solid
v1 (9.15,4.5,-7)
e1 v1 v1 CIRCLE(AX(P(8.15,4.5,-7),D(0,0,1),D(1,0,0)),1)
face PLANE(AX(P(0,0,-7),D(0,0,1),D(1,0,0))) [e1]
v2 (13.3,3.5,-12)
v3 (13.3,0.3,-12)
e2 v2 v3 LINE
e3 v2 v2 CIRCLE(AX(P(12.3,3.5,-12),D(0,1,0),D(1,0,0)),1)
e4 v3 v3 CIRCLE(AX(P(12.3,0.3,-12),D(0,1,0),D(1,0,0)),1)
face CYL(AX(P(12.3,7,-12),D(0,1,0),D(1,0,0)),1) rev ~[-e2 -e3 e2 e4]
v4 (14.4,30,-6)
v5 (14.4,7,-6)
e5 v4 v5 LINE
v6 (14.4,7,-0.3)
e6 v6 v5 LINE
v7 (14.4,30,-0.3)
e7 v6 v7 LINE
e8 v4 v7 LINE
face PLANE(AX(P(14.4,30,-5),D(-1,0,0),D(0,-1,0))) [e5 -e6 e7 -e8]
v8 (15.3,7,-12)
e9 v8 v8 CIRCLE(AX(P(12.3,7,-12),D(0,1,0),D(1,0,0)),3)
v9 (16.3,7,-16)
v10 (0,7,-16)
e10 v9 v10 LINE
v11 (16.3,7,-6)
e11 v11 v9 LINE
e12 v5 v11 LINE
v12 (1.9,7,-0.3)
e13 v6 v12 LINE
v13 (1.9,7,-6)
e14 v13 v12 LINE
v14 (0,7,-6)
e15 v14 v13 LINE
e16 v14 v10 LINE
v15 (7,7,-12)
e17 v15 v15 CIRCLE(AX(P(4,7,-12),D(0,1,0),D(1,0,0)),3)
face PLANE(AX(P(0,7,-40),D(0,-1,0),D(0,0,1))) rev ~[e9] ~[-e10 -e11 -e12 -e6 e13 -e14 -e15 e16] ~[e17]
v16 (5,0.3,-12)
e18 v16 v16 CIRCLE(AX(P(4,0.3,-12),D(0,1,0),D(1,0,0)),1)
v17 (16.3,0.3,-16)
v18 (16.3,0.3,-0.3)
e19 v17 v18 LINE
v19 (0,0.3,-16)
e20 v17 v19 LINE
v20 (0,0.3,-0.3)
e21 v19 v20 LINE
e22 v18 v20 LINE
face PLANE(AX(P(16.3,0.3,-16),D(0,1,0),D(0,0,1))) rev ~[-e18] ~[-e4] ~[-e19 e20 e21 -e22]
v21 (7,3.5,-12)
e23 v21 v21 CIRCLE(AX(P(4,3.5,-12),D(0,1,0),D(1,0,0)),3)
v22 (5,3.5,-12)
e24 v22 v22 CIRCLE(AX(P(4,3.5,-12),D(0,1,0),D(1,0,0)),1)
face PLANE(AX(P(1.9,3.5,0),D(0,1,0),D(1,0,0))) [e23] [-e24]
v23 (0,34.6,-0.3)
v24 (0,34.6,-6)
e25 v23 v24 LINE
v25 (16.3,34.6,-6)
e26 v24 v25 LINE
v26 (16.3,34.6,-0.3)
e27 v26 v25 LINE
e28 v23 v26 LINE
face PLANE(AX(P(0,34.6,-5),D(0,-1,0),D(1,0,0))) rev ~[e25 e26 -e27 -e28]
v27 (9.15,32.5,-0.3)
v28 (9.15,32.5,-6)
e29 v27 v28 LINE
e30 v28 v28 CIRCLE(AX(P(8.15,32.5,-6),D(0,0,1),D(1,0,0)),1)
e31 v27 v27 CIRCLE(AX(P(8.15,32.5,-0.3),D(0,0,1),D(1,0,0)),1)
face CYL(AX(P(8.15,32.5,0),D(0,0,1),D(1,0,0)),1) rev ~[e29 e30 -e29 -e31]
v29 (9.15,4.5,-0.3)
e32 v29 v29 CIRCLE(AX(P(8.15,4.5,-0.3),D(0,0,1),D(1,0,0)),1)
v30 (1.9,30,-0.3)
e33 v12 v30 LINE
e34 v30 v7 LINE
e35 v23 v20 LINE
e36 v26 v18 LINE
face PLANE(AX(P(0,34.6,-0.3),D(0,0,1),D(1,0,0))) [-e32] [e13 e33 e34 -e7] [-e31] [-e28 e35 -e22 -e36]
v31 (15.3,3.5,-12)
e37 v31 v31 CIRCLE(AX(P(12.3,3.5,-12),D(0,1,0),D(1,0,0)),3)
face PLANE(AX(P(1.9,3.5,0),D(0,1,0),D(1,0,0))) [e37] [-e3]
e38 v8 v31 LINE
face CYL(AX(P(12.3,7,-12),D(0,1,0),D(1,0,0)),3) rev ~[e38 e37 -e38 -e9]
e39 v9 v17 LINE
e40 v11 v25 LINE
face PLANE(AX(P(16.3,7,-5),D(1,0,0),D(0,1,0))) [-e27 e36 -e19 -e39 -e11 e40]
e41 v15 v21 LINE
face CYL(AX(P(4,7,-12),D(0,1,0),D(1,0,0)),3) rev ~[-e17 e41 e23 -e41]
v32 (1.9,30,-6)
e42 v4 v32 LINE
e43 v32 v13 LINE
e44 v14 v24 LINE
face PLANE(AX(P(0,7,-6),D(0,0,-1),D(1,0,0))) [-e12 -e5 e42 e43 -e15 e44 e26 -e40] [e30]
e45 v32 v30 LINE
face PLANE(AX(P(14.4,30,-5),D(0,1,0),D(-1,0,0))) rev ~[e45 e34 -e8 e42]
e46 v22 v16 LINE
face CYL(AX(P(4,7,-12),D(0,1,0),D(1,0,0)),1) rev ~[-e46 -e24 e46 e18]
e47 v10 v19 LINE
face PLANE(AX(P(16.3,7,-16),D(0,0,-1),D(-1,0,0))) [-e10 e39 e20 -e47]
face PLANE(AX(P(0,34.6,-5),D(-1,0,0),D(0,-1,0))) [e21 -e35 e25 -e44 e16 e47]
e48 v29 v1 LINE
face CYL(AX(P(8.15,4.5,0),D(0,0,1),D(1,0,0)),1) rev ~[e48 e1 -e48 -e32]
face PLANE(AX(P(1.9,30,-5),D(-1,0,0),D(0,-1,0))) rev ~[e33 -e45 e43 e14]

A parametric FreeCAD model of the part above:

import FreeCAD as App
import Part
import Sketcher

V = App.Vector
Q = App.Units.Quantity


def add_polygon(sketch, points):
    """Adds a closed chain of lines whose ends are joined by coincident constraints."""
    first, n = sketch.GeometryCount, len(points)
    for a, b in zip(points, points[1:] + points[:1]):
        sketch.addGeometry(Part.LineSegment(App.Vector(*a, 0), App.Vector(*b, 0)), False)
    for i in range(n):
        sketch.addConstraint(Sketcher.Constraint("Coincident", first + i, 2, first + (i + 1) % n, 1))

doc = App.newDocument("Part")
body = doc.addObject("PartDesign::Body", "Body")

# Sketch on YZ plane
sketch1 = body.newObject("Sketcher::SketchObject", "Sketch")
sketch1.AttachmentSupport = (doc.getObject("YZ_Plane"), [""])
sketch1.MapMode = "FlatFace"
add_polygon(sketch1, [(35, -5), (35, 0), (0, 0), (0, -40), (7, -40), (7, -5)])  # lines 0-5
sketch1.addConstraint([
    Sketcher.Constraint("Vertical", 0),
    Sketcher.Constraint("Horizontal", 1),
    Sketcher.Constraint("Vertical", 2),
    Sketcher.Constraint("Horizontal", 3),
    Sketcher.Constraint("Vertical", 4),
    Sketcher.Constraint("Horizontal", 5),
    Sketcher.Constraint("Coincident", 1, 2, -1, 1),
    Sketcher.Constraint("DistanceX", 3, 1, 3, 2, Q("7 mm")),
    Sketcher.Constraint("DistanceY", 0, 1, 0, 2, Q("5 mm")),
    Sketcher.Constraint("DistanceY", 2, 2, 2, 1, Q("40 mm")),
    Sketcher.Constraint("DistanceX", 1, 2, 1, 1, Q("34.6 mm")),
])
pad1 = body.newObject("PartDesign::Pad", "Pad")
pad1.Profile = sketch1
pad1.Length = 16.3

# Sketch on XZ plane
sketch2 = body.newObject("Sketcher::SketchObject", "Sketch001")
sketch2.AttachmentSupport = (doc.getObject("XZ_Plane"), [""])
sketch2.MapMode = "FlatFace"
sketch2.AttachmentOffset = App.Placement(V(0, 0, -7), App.Rotation())
sketch2.addGeometry([
    Part.Circle(V(8.2, -25, 0), V(0, 0, 1), 1.5),
    Part.Circle(V(8.2, -33, 0), V(0, 0, 1), 1.5),
], False)
sketch2.addConstraint([
    Sketcher.Constraint("Equal", 0, 1),
    Sketcher.Constraint("Vertical", 0, 3, 1, 3),
    Sketcher.Constraint("Diameter", 0, Q("3 mm")),
    Sketcher.Constraint("DistanceY", 0, 3, -1, 1, Q("25 mm")),
    Sketcher.Constraint("DistanceY", 1, 3, 0, 3, Q("8 mm")),
    Sketcher.Constraint("DistanceX", -1, 1, 0, 3, Q("8.15 mm")),
])
pocket1 = body.newObject("PartDesign::Pocket", "Pocket")
pocket1.Profile = sketch2
pocket1.Type = "ThroughAll"
pocket1.Reversed = True

# Sketch on XY plane
sketch3 = body.newObject("Sketcher::SketchObject", "Sketch002")
sketch3.AttachmentSupport = (doc.getObject("XY_Plane"), [""])
sketch3.MapMode = "FlatFace"
sketch3.AttachmentOffset = App.Placement(V(0, 0, -5), App.Rotation())
add_polygon(sketch3, [(14, 7), (2, 7), (2, 30), (14, 30)])  # lines 0-3
sketch3.addConstraint([
    Sketcher.Constraint("Horizontal", 0),
    Sketcher.Constraint("Vertical", 1),
    Sketcher.Constraint("Horizontal", 2),
    Sketcher.Constraint("Vertical", 3),
    Sketcher.Constraint("DistanceY", 1, 1, 1, 2, Q("23 mm")),
    Sketcher.Constraint("DistanceX", 0, 2, 0, 1, Q("12.5 mm")),
    Sketcher.Constraint("DistanceX", -1, 1, 0, 2, Q("1.9 mm")),
    Sketcher.Constraint("DistanceY", -1, 1, 0, 2, Q("7 mm")),
])
pocket2 = body.newObject("PartDesign::Pocket", "Pocket001")
pocket2.Profile = sketch3
pocket2.Length = 16.3
pocket2.Reversed = True

# Sketch on XY plane
sketch4 = body.newObject("Sketcher::SketchObject", "Sketch003")
sketch4.AttachmentSupport = (doc.getObject("XY_Plane"), [""])
sketch4.MapMode = "FlatFace"
sketch4.AttachmentOffset = App.Placement(V(0, 0, -5), App.Rotation())
add_polygon(sketch4, [(0, 7), (0, 34.6), (16.3, 34.6), (16.3, 7), (14.4, 7), (14.4, 30), (1.9, 30), (1.9, 7)])  # lines 0-7
sketch4.addConstraint([
    Sketcher.Constraint("Vertical", 0),
    Sketcher.Constraint("Horizontal", 1),
    Sketcher.Constraint("Vertical", 2),
    Sketcher.Constraint("Horizontal", 3),
    Sketcher.Constraint("Vertical", 4),
    Sketcher.Constraint("Horizontal", 5),
    Sketcher.Constraint("Vertical", 6),
    Sketcher.Constraint("Horizontal", 7),
    Sketcher.Constraint("PointOnObject", 0, 2, -2),
    Sketcher.Constraint("Horizontal", 3, 2, 6, 2),
    Sketcher.Constraint("Equal", 3, 7),
    Sketcher.Constraint("DistanceX", 3, 2, 3, 1, Q("1.9 mm")),
    Sketcher.Constraint("DistanceY", 4, 1, 4, 2, Q("23 mm")),
    Sketcher.Constraint("DistanceX", 1, 1, 1, 2, Q("16.3 mm")),
    Sketcher.Constraint("DistanceY", 0, 1, 0, 2, Q("27.6 mm")),
    Sketcher.Constraint("DistanceY", -1, 1, 2, 2, Q("7 mm")),
])
pad2 = body.newObject("PartDesign::Pad", "Pad001")
pad2.Profile = sketch4
pad2.Length = 4
pad2.Reversed = True

# Sketch on XY plane
sketch5 = body.newObject("Sketcher::SketchObject", "Sketch004")
sketch5.AttachmentSupport = (doc.getObject("XY_Plane"), [""])
sketch5.MapMode = "FlatFace"
sketch5.addGeometry([
    Part.Circle(V(8.2, 32.5, 0), V(0, 0, 1), 1),
    Part.Circle(V(8.2, 4.5, 0), V(0, 0, 1), 1),
], False)
sketch5.addConstraint([
    Sketcher.Constraint("Equal", 0, 1),
    Sketcher.Constraint("Vertical", 0, 3, 1, 3),
    Sketcher.Constraint("Diameter", 0, Q("2 mm")),
    Sketcher.Constraint("DistanceX", -1, 1, 0, 3, Q("8.15 mm")),
    Sketcher.Constraint("DistanceY", 1, 3, 0, 3, Q("28 mm")),
    Sketcher.Constraint("DistanceY", -1, 1, 0, 3, Q("32.5 mm")),
])
pocket3 = body.newObject("PartDesign::Pocket", "Pocket002")
pocket3.Profile = sketch5
pocket3.Length = 7

# Sketch on XZ plane
sketch6 = body.newObject("Sketcher::SketchObject", "Sketch005")
sketch6.AttachmentSupport = (doc.getObject("XZ_Plane"), [""])
sketch6.MapMode = "FlatFace"
sketch6.AttachmentOffset = App.Placement(V(0, 0, -7), App.Rotation())
sketch6.addGeometry([
    Part.Circle(V(12.3, -12, 0), V(0, 0, 1), 1),
    Part.Circle(V(4, -12, 0), V(0, 0, 1), 1),
], False)
sketch6.addConstraint([
    Sketcher.Constraint("Equal", 0, 1),
    Sketcher.Constraint("Horizontal", 0, 3, 1, 3),
    Sketcher.Constraint("Diameter", 0, Q("2 mm")),
    Sketcher.Constraint("DistanceY", 0, 3, -1, 1, Q("12 mm")),
    Sketcher.Constraint("DistanceX", -1, 1, 1, 3, Q("4 mm")),
    Sketcher.Constraint("DistanceX", -1, 1, 0, 3, Q("12.3 mm")),
])
pocket4 = body.newObject("PartDesign::Pocket", "Pocket003")
pocket4.Profile = sketch6
pocket4.Length = 10
pocket4.Reversed = True

# Sketch on XZ plane
sketch7 = body.newObject("Sketcher::SketchObject", "Sketch006")
sketch7.AttachmentSupport = (doc.getObject("XZ_Plane"), [""])
sketch7.MapMode = "FlatFace"
sketch7.AttachmentOffset = App.Placement(V(0, 0, -7), App.Rotation())
add_polygon(sketch7, [(16, -40), (0, -40), (0, -16), (16, -16)])  # lines 0-3
sketch7.addConstraint([
    Sketcher.Constraint("Horizontal", 0),
    Sketcher.Constraint("Vertical", 1),
    Sketcher.Constraint("Horizontal", 2),
    Sketcher.Constraint("Vertical", 3),
    Sketcher.Constraint("PointOnObject", 0, 2, -2),
    Sketcher.Constraint("DistanceY", 1, 2, -1, 1, Q("16 mm")),
    Sketcher.Constraint("DistanceY", 1, 1, 1, 2, Q("24 mm")),
    Sketcher.Constraint("DistanceX", 0, 2, 0, 1, Q("16.3 mm")),
])
pocket5 = body.newObject("PartDesign::Pocket", "Pocket004")
pocket5.Profile = sketch7
pocket5.Length = 10
pocket5.Reversed = True

# Sketch on XZ plane
sketch8 = body.newObject("Sketcher::SketchObject", "Sketch007")
sketch8.AttachmentSupport = (doc.getObject("XZ_Plane"), [""])
sketch8.MapMode = "FlatFace"
sketch8.AttachmentOffset = App.Placement(V(0, 0, -7), App.Rotation())
add_polygon(sketch8, [(0, -9), (0, -6), (16.3, -6), (16.3, -9)])  # lines 0-3
sketch8.addConstraint([
    Sketcher.Constraint("Vertical", 0),
    Sketcher.Constraint("Horizontal", 1),
    Sketcher.Constraint("Vertical", 2),
    Sketcher.Constraint("Horizontal", 3),
    Sketcher.Constraint("PointOnObject", 0, 2, -2),
    Sketcher.Constraint("DistanceY", 0, 1, 0, 2, Q("3 mm")),
    Sketcher.Constraint("DistanceX", 1, 1, 1, 2, Q("16.3 mm")),
    Sketcher.Constraint("DistanceY", 0, 2, -1, 1, Q("6 mm")),
])
pocket6 = body.newObject("PartDesign::Pocket", "Pocket005")
pocket6.Profile = sketch8
pocket6.Length = 27.6

# Sketch on XZ plane
sketch9 = body.newObject("Sketcher::SketchObject", "Sketch008")
sketch9.AttachmentSupport = (doc.getObject("XZ_Plane"), [""])
sketch9.MapMode = "FlatFace"
sketch9.AttachmentOffset = App.Placement(V(0, 0, -7), App.Rotation())
sketch9.addGeometry([
    Part.Circle(V(12.3, -12, 0), V(0, 0, 1), 3),
    Part.Circle(V(12.3, -12, 0), V(0, 0, 1), 1),
    Part.Circle(V(4, -12, 0), V(0, 0, 1), 3),
    Part.Circle(V(4, -12, 0), V(0, 0, 1), 1),
], False)
sketch9.addConstraint([
    Sketcher.Constraint("Coincident", 1, 3, 0, 3),
    Sketcher.Constraint("Coincident", 3, 3, 2, 3),
    Sketcher.Constraint("Equal", 0, 2),
    Sketcher.Constraint("Equal", 1, 3),
    Sketcher.Constraint("Horizontal", 1, 3, 2, 3),
    Sketcher.Constraint("Diameter", 0, Q("6 mm")),
    Sketcher.Constraint("Diameter", 1, Q("2 mm")),
    Sketcher.Constraint("DistanceY", 0, 3, -1, 1, Q("12 mm")),
    Sketcher.Constraint("DistanceX", -1, 1, 2, 3, Q("4 mm")),
    Sketcher.Constraint("DistanceX", -1, 1, 0, 3, Q("12.3 mm")),
])
pocket7 = body.newObject("PartDesign::Pocket", "Pocket006")
pocket7.Profile = sketch9
pocket7.Length = 3.5
pocket7.Reversed = True

# Sketch on XZ plane
sketch10 = body.newObject("Sketcher::SketchObject", "Sketch009")
sketch10.AttachmentSupport = (doc.getObject("XZ_Plane"), [""])
sketch10.MapMode = "FlatFace"
sketch10.AttachmentOffset = App.Placement(V(0, 0, -34.6), App.Rotation())
add_polygon(sketch10, [(0, -0.3), (0, 0), (16.3, 0), (16.3, -0.3)])  # lines 0-3
sketch10.addConstraint([
    Sketcher.Constraint("Vertical", 0),
    Sketcher.Constraint("Horizontal", 1),
    Sketcher.Constraint("Vertical", 2),
    Sketcher.Constraint("Horizontal", 3),
    Sketcher.Constraint("Coincident", 0, 2, -1, 1),
    Sketcher.Constraint("DistanceY", 0, 1, 0, 2, Q("0.3 mm")),
    Sketcher.Constraint("DistanceX", 1, 1, 1, 2, Q("16.3 mm")),
])
pocket8 = body.newObject("PartDesign::Pocket", "Pocket007")
pocket8.Profile = sketch10
pocket8.Length = 34.6
pocket8.Reversed = True

# Sketch on YZ plane
sketch11 = body.newObject("Sketcher::SketchObject", "Sketch010")
sketch11.AttachmentSupport = (doc.getObject("YZ_Plane"), [""])
sketch11.MapMode = "FlatFace"
sketch11.AttachmentOffset = App.Placement(V(0, 0, 16.3), App.Rotation())
add_polygon(sketch11, [(0.3, -0.3), (0, -0.3), (0, -16), (0.3, -16)])  # lines 0-3
sketch11.addConstraint([
    Sketcher.Constraint("Horizontal", 0),
    Sketcher.Constraint("Vertical", 1),
    Sketcher.Constraint("Horizontal", 2),
    Sketcher.Constraint("Vertical", 3),
    Sketcher.Constraint("PointOnObject", 0, 2, -2),
    Sketcher.Constraint("DistanceX", 0, 2, 0, 1, Q("0.3 mm")),
    Sketcher.Constraint("DistanceY", 0, 2, -1, 1, Q("0.3 mm")),
    Sketcher.Constraint("DistanceY", 1, 2, 1, 1, Q("15.7 mm")),
])
pocket9 = body.newObject("PartDesign::Pocket", "Pocket008")
pocket9.Profile = sketch11
pocket9.Length = 16.3

doc.recompute()
